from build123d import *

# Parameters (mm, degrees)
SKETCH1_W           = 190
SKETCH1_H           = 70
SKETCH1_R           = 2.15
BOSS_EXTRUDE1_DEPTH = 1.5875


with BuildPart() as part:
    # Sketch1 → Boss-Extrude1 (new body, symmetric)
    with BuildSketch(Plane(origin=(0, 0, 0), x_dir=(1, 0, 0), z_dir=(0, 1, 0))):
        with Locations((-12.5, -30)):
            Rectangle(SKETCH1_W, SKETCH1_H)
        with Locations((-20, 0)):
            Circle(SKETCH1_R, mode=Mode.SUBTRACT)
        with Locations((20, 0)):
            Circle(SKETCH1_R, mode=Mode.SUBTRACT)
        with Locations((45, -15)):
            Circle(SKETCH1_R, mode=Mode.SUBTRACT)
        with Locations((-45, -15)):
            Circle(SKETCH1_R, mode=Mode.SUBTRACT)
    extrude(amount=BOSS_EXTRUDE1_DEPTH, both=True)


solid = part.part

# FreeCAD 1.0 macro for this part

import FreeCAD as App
import Part
import Sketcher
Q = App.Units.Quantity


def add_polygon(sketch, points):
    """Adds a closed chain of lines whose ends are joined by coincident constraints."""
    first, n = sketch.GeometryCount, len(points)
    for a, b in zip(points, points[1:] + points[:1]):
        sketch.addGeometry(Part.LineSegment(App.Vector(*a, 0), App.Vector(*b, 0)), False)
    for i in range(n):
        sketch.addConstraint(Sketcher.Constraint("Coincident", first + i, 2, first + (i + 1) % n, 1))

doc = App.newDocument("Part")
params = doc.addObject("Spreadsheet::Sheet", "Params")
for row, (alias, value) in enumerate([
    ("sketch1_diameter", "4.3 mm"),
    ("sketch1_width", "190 mm"),
    ("sketch1_height", "70 mm"),
    ("pad1_length", "3.175 mm"),
], start=1):
    params.set(f"A{row}", alias)
    params.set(f"B{row}", "=" + value)
    params.setAlias(f"B{row}", alias)

body = doc.addObject("PartDesign::Body", "Body")

sketch1 = body.newObject("Sketcher::SketchObject", "Sketch")
sketch1.AttachmentSupport = (doc.getObject("XZ_Plane"), [""])
sketch1.MapMode = "FlatFace"
add_polygon(sketch1, [(-107.5, -5), (-107.5, 65), (82.5, 65), (82.5, -5)])
sketch1.addGeometry(Part.Circle(App.Vector(-45, 15, 0), App.Vector(0, 0, 1), 2.15), False)
sketch1.addGeometry(Part.Circle(App.Vector(45, 15, 0), App.Vector(0, 0, 1), 2.15), False)
sketch1.addGeometry(Part.Circle(App.Vector(-20, 0, 0), App.Vector(0, 0, 1), 2.15), False)
sketch1.addGeometry(Part.Circle(App.Vector(20, 0, 0), App.Vector(0, 0, 1), 2.15), False)
sketch1.addConstraint([
    Sketcher.Constraint("Vertical", 0),
    Sketcher.Constraint("Horizontal", 1),
    Sketcher.Constraint("Vertical", 2),
    Sketcher.Constraint("Horizontal", 3),
    Sketcher.Constraint("Equal", 4, 5),
    Sketcher.Constraint("Equal", 5, 6),
    Sketcher.Constraint("Equal", 6, 7),
    Sketcher.Constraint("Symmetric", 6, 3, 7, 3, -1, 1),
    Sketcher.Constraint("Symmetric", 4, 3, 5, 3, -2),
    Sketcher.Constraint("PointOnObject", 6, 3, -1),
    Sketcher.Constraint("Diameter", 4, Q("4.3 mm")),
    Sketcher.Constraint("DistanceX", 1, 1, 1, 2, Q("190 mm")),
    Sketcher.Constraint("DistanceY", 0, 1, 0, 2, Q("70 mm")),
    Sketcher.Constraint("DistanceX", 4, 3, -1, 1, Q("45 mm")),
    Sketcher.Constraint("DistanceY", -1, 1, 4, 3, Q("15 mm")),
    Sketcher.Constraint("DistanceX", 6, 3, -1, 1, Q("20 mm")),
    Sketcher.Constraint("DistanceY", -1, 1, 0, 2, Q("65 mm")),
    Sketcher.Constraint("DistanceX", 0, 2, -1, 1, Q("107.5 mm")),
])
sketch1.setExpression("Constraints[14]", "Params.sketch1_diameter")
sketch1.setExpression("Constraints[15]", "Params.sketch1_width")
sketch1.setExpression("Constraints[16]", "Params.sketch1_height")
pad1 = body.newObject("PartDesign::Pad", "Pad")
pad1.Profile = sketch1
pad1.setExpression("Length", "Params.pad1_length")
pad1.Midplane = True

doc.recompute()
